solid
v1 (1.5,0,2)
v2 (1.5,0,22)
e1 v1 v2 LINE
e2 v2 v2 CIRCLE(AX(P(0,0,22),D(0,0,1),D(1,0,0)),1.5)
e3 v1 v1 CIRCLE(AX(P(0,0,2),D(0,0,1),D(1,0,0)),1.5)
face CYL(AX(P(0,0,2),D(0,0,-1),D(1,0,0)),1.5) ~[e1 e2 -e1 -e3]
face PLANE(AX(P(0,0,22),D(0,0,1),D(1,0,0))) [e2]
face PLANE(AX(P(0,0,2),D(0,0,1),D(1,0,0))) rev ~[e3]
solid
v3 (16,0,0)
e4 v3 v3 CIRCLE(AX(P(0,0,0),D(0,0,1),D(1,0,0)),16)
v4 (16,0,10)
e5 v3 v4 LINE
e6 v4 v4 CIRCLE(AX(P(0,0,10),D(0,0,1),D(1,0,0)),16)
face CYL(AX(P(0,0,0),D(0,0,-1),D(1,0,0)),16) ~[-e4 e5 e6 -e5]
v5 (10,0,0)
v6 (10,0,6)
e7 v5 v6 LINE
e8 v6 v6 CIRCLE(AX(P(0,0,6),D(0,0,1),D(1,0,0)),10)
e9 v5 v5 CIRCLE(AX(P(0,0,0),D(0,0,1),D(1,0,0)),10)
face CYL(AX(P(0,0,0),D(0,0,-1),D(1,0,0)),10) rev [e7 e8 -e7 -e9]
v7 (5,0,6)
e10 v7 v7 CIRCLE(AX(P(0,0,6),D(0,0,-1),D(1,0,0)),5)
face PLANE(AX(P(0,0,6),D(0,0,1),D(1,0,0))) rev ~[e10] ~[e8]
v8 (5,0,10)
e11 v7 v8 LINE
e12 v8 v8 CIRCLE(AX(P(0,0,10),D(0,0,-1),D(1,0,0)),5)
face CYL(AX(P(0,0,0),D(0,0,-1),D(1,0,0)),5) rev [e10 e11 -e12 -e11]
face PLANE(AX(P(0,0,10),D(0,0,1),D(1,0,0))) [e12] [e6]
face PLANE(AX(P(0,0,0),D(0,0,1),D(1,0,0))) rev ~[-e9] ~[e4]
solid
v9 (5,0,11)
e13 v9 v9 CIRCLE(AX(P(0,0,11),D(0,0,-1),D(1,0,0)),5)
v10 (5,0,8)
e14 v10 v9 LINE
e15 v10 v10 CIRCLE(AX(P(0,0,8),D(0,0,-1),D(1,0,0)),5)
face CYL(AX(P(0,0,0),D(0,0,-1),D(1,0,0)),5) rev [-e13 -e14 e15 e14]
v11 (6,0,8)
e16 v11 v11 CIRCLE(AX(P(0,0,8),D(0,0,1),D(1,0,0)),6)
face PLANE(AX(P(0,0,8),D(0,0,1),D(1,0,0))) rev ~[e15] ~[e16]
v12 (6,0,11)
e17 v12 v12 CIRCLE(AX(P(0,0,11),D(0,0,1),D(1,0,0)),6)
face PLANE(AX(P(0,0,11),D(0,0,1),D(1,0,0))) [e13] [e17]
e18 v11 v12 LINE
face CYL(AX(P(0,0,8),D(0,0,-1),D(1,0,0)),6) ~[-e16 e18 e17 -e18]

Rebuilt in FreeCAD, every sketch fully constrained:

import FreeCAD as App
import Part
import Sketcher
Q = App.Units.Quantity

doc = App.newDocument("Part")
body = doc.addObject("PartDesign::Body", "Body")

sketch1 = body.newObject("Sketcher::SketchObject", "Sketch")
sketch1.AttachmentSupport = (doc.getObject("XY_Plane"), [""])
sketch1.MapMode = "FlatFace"
sketch1.addGeometry(Part.Circle(App.Vector(0, 0, 0), App.Vector(0, 0, 1), 5), False)
sketch1.addConstraint(Sketcher.Constraint("Coincident", 0, 3, -1, 1))
sketch1.addConstraint(Sketcher.Constraint("Diameter", 0, Q("10 mm")))
pad1 = body.newObject("PartDesign::Pad", "Pad")
pad1.Profile = sketch1
pad1.Length = 12
body2 = doc.addObject("PartDesign::Body", "Body001")

sketch2 = body2.newObject("Sketcher::SketchObject", "Sketch001")
sketch2.AttachmentSupport = (doc.getObject("XY_Plane001"), [""])
sketch2.MapMode = "FlatFace"
sketch2.addGeometry(Part.Circle(App.Vector(0, 0, 0), App.Vector(0, 0, 1), 10), False)
sketch2.addConstraint(Sketcher.Constraint("Coincident", 0, 3, -1, 1))
sketch2.addConstraint(Sketcher.Constraint("Diameter", 0, Q("20 mm")))
pad2 = body2.newObject("PartDesign::Pad", "Pad001")
pad2.Profile = sketch2
pad2.Length = 6
body3 = doc.addObject("PartDesign::Body", "Body002")

sketch3 = body3.newObject("Sketcher::SketchObject", "Sketch002")
sketch3.AttachmentSupport = (doc.getObject("XY_Plane002"), [""])
sketch3.MapMode = "FlatFace"
sketch3.addGeometry(Part.Circle(App.Vector(0, 0, 0), App.Vector(0, 0, 1), 16), False)
sketch3.addConstraint(Sketcher.Constraint("Coincident", 0, 3, -1, 1))
sketch3.addConstraint(Sketcher.Constraint("Diameter", 0, Q("32 mm")))
pad3 = body3.newObject("PartDesign::Pad", "Pad002")
pad3.Profile = sketch3
pad3.Length = 10
doc.recompute()

boolean = body3.newObject("PartDesign::Boolean", "Boolean")
boolean.Type = "Cut"
boolean.addObjects([body2])
doc.recompute()

boolean2 = body3.newObject("PartDesign::Boolean", "Boolean001")
boolean2.Type = "Cut"
boolean2.addObjects([body])
body4 = doc.addObject("PartDesign::Body", "Body003")

sketch4 = body4.newObject("Sketcher::SketchObject", "Sketch003")
sketch4.AttachmentSupport = (doc.getObject("XY_Plane003"), [""])
sketch4.MapMode = "FlatFace"
sketch4.AttachmentOffset = App.Placement(App.Vector(0, 0, 2), App.Rotation())
sketch4.addGeometry(Part.Circle(App.Vector(0, 0, 0), App.Vector(0, 0, 1), 1.5), False)
sketch4.addConstraint(Sketcher.Constraint("Coincident", 0, 3, -1, 1))
sketch4.addConstraint(Sketcher.Constraint("Diameter", 0, Q("3 mm")))
pad4 = body4.newObject("PartDesign::Pad", "Pad003")
pad4.Profile = sketch4
pad4.Length = 20
body5 = doc.addObject("PartDesign::Body", "Body004")

sketch5 = body5.newObject("Sketcher::SketchObject", "Sketch004")
sketch5.AttachmentSupport = (doc.getObject("XY_Plane004"), [""])
sketch5.MapMode = "FlatFace"
sketch5.addGeometry(Part.Circle(App.Vector(0, 0, 0), App.Vector(0, 0, 1), 5), False)
sketch5.addConstraint(Sketcher.Constraint("Coincident", 0, 3, -1, 1))
sketch5.addConstraint(Sketcher.Constraint("Diameter", 0, Q("10 mm")))
pad5 = body5.newObject("PartDesign::Pad", "Pad004")
pad5.Profile = sketch5
pad5.Length = 13
body6 = doc.addObject("PartDesign::Body", "Body005")

sketch6 = body6.newObject("Sketcher::SketchObject", "Sketch005")
sketch6.AttachmentSupport = (doc.getObject("XY_Plane005"), [""])
sketch6.MapMode = "FlatFace"
sketch6.AttachmentOffset = App.Placement(App.Vector(0, 0, 8), App.Rotation())
sketch6.addGeometry(Part.Circle(App.Vector(0, 0, 0), App.Vector(0, 0, 1), 6), False)
sketch6.addConstraint(Sketcher.Constraint("Coincident", 0, 3, -1, 1))
sketch6.addConstraint(Sketcher.Constraint("Diameter", 0, Q("12 mm")))
pad6 = body6.newObject("PartDesign::Pad", "Pad005")
pad6.Profile = sketch6
pad6.Length = 3
doc.recompute()

boolean3 = body6.newObject("PartDesign::Boolean", "Boolean002")
boolean3.Type = "Cut"
boolean3.addObjects([body5])

doc.recompute()
